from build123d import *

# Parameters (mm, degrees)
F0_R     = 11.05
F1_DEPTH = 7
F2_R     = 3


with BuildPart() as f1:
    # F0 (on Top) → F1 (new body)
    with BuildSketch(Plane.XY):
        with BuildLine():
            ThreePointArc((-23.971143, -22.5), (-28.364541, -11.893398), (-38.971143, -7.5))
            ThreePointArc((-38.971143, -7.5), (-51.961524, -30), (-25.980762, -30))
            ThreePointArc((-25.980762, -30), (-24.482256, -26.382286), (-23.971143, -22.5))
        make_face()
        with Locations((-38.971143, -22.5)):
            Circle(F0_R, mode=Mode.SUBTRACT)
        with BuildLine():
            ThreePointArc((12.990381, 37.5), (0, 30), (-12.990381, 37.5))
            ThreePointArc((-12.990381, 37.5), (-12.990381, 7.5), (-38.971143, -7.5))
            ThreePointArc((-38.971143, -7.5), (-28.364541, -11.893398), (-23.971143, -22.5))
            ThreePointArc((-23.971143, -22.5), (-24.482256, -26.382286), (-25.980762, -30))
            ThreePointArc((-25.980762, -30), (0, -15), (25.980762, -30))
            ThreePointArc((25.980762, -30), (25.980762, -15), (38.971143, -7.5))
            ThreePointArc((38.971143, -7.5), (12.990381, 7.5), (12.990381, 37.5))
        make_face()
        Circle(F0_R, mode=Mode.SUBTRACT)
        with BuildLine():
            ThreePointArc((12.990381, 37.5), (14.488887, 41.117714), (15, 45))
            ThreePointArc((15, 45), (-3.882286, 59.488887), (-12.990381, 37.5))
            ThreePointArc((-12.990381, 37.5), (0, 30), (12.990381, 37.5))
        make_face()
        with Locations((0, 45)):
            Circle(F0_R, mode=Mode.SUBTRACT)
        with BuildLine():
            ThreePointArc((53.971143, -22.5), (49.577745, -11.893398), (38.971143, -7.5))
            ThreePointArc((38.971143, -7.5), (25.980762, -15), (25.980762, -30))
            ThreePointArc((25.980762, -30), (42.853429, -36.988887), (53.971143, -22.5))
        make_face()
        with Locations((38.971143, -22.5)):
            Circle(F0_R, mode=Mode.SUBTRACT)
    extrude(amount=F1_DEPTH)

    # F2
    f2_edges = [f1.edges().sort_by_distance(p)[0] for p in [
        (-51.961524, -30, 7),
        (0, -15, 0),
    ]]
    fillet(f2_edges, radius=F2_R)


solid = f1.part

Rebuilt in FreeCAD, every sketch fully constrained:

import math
import FreeCAD as App
import Part
import Sketcher
from FreeCAD import Vector


def edges_at(feature, points):
    """Names of the edges that pass closest to the given points."""
    edges = feature.Shape.Edges
    near = lambda p: min(range(len(edges)), key=lambda i: edges[i].distToShape(Part.Vertex(*p))[0])
    return sorted({f"Edge{near(p) + 1}" for p in points})

doc = App.newDocument("Part")
body = doc.addObject("PartDesign::Body", "Body")

# Sketch on XY plane
sketch1 = body.newObject("Sketcher::SketchObject", "Sketch")
sketch1.AttachmentSupport = (doc.getObject("XY_Plane"), [""])
sketch1.MapMode = "FlatFace"
sketch1.addGeometry(Part.ArcOfCircle(Part.Circle(Vector(-38.971143, -22.5, 0), Vector(0, 0, 1), 15), math.radians(90), math.radians(330)), False)
sketch1.addGeometry(Part.ArcOfCircle(Part.Circle(Vector(0, -45, 0), Vector(0, 0, 1), 30), math.radians(30), math.radians(150)), False)
sketch1.addGeometry(Part.ArcOfCircle(Part.Circle(Vector(38.971143, -22.5, 0), Vector(0, 0, 1), 15), math.radians(-149.999999), math.radians(-0.000001)), False)
sketch1.addGeometry(Part.ArcOfCircle(Part.Circle(Vector(38.971144, -22.499999, 0), Vector(0, 0, 1), 14.999999), math.radians(-0.000004), math.radians(90.000004)), False)
sketch1.addGeometry(Part.ArcOfCircle(Part.Circle(Vector(38.971143, 22.5, 0), Vector(0, 0, 1), 30), math.radians(150), math.radians(270)), False)
sketch1.addGeometry(Part.ArcOfCircle(Part.Circle(Vector(-0.000008, 45.000002, 0), Vector(0, 0, 1), 15.000008), math.radians(-29.999993), math.radians(-0.000008)), False)
sketch1.addGeometry(Part.ArcOfCircle(Part.Circle(Vector(0, 45, 0), Vector(0, 0, 1), 15), math.radians(0.000001), math.radians(209.999999)), False)
sketch1.addGeometry(Part.ArcOfCircle(Part.Circle(Vector(-38.971143, 22.5, 0), Vector(0, 0, 1), 30), math.radians(-90), math.radians(30)), False)
sketch1.addGeometry(Part.Circle(Vector(-38.971143, -22.5, 0), Vector(0, 0, 1), 11.05), False)
sketch1.addGeometry(Part.Circle(Vector(38.971143, -22.5, 0), Vector(0, 0, 1), 11.05), False)
sketch1.addGeometry(Part.Circle(Vector(0, 0, 0), Vector(0, 0, 1), 11.05), False)
sketch1.addGeometry(Part.Circle(Vector(0, 45, 0), Vector(0, 0, 1), 11.05), False)
sketch1.addConstraint(Sketcher.Constraint("Tangent", 0, 2, 1, 2))
sketch1.addConstraint(Sketcher.Constraint("Tangent", 1, 1, 2, 1))
sketch1.addConstraint(Sketcher.Constraint("Tangent", 2, 2, 3, 1))
sketch1.addConstraint(Sketcher.Constraint("Tangent", 3, 2, 4, 2))
sketch1.addConstraint(Sketcher.Constraint("Tangent", 4, 1, 5, 1))
sketch1.addConstraint(Sketcher.Constraint("Tangent", 5, 2, 6, 1))
sketch1.addConstraint(Sketcher.Constraint("Tangent", 6, 2, 7, 2))
sketch1.addConstraint(Sketcher.Constraint("Tangent", 7, 1, 0, 1))
sketch1.addConstraint(Sketcher.Constraint("Coincident", 10, 3, -1, 1))
sketch1.addConstraint(Sketcher.Constraint("Coincident", 8, 3, 0, 3))
sketch1.addConstraint(Sketcher.Constraint("Coincident", 9, 3, 2, 3))
sketch1.addConstraint(Sketcher.Constraint("Coincident", 11, 3, 5, 3))
sketch1.addConstraint(Sketcher.Constraint("Equal", 0, 2))
sketch1.addConstraint(Sketcher.Constraint("Equal", 2, 3))
sketch1.addConstraint(Sketcher.Constraint("Equal", 1, 4))
sketch1.addConstraint(Sketcher.Constraint("Equal", 3, 6))
sketch1.addConstraint(Sketcher.Constraint("Equal", 4, 7))
sketch1.addConstraint(Sketcher.Constraint("Equal", 8, 9))
sketch1.addConstraint(Sketcher.Constraint("Equal", 9, 10))
sketch1.addConstraint(Sketcher.Constraint("Equal", 10, 11))
sketch1.addConstraint(Sketcher.Constraint("Symmetric", 0, 3, 4, 3, -1, 1))
sketch1.addConstraint(Sketcher.Constraint("Symmetric", 1, 3, 5, 3, -1, 1))
sketch1.addConstraint(Sketcher.Constraint("Symmetric", 0, 3, 2, 3, -2))
sketch1.addConstraint(Sketcher.Constraint("Horizontal", 9, 3, 2, 2))
sketch1.addConstraint(Sketcher.Constraint("Horizontal", 11, 3, 5, 2))
sketch1.addConstraint(Sketcher.Constraint("Radius", 0, 15.0))
sketch1.addConstraint(Sketcher.Constraint("Radius", 1, 30.0))
sketch1.addConstraint(Sketcher.Constraint("Diameter", 8, 22.1))
sketch1.addConstraint(Sketcher.Constraint("DistanceY", 1, 3, -1, 1, 45.0))
pad1 = body.newObject("PartDesign::Pad", "Pad")
pad1.Profile = sketch1
pad1.Length = 7
doc.recompute()

fillet = body.newObject("PartDesign::Fillet", "Fillet")
fillet.Base = (pad1, edges_at(pad1, [(-51.962, -30, 7), (0, -15, 0)]))
fillet.Radius = 3

doc.recompute()
